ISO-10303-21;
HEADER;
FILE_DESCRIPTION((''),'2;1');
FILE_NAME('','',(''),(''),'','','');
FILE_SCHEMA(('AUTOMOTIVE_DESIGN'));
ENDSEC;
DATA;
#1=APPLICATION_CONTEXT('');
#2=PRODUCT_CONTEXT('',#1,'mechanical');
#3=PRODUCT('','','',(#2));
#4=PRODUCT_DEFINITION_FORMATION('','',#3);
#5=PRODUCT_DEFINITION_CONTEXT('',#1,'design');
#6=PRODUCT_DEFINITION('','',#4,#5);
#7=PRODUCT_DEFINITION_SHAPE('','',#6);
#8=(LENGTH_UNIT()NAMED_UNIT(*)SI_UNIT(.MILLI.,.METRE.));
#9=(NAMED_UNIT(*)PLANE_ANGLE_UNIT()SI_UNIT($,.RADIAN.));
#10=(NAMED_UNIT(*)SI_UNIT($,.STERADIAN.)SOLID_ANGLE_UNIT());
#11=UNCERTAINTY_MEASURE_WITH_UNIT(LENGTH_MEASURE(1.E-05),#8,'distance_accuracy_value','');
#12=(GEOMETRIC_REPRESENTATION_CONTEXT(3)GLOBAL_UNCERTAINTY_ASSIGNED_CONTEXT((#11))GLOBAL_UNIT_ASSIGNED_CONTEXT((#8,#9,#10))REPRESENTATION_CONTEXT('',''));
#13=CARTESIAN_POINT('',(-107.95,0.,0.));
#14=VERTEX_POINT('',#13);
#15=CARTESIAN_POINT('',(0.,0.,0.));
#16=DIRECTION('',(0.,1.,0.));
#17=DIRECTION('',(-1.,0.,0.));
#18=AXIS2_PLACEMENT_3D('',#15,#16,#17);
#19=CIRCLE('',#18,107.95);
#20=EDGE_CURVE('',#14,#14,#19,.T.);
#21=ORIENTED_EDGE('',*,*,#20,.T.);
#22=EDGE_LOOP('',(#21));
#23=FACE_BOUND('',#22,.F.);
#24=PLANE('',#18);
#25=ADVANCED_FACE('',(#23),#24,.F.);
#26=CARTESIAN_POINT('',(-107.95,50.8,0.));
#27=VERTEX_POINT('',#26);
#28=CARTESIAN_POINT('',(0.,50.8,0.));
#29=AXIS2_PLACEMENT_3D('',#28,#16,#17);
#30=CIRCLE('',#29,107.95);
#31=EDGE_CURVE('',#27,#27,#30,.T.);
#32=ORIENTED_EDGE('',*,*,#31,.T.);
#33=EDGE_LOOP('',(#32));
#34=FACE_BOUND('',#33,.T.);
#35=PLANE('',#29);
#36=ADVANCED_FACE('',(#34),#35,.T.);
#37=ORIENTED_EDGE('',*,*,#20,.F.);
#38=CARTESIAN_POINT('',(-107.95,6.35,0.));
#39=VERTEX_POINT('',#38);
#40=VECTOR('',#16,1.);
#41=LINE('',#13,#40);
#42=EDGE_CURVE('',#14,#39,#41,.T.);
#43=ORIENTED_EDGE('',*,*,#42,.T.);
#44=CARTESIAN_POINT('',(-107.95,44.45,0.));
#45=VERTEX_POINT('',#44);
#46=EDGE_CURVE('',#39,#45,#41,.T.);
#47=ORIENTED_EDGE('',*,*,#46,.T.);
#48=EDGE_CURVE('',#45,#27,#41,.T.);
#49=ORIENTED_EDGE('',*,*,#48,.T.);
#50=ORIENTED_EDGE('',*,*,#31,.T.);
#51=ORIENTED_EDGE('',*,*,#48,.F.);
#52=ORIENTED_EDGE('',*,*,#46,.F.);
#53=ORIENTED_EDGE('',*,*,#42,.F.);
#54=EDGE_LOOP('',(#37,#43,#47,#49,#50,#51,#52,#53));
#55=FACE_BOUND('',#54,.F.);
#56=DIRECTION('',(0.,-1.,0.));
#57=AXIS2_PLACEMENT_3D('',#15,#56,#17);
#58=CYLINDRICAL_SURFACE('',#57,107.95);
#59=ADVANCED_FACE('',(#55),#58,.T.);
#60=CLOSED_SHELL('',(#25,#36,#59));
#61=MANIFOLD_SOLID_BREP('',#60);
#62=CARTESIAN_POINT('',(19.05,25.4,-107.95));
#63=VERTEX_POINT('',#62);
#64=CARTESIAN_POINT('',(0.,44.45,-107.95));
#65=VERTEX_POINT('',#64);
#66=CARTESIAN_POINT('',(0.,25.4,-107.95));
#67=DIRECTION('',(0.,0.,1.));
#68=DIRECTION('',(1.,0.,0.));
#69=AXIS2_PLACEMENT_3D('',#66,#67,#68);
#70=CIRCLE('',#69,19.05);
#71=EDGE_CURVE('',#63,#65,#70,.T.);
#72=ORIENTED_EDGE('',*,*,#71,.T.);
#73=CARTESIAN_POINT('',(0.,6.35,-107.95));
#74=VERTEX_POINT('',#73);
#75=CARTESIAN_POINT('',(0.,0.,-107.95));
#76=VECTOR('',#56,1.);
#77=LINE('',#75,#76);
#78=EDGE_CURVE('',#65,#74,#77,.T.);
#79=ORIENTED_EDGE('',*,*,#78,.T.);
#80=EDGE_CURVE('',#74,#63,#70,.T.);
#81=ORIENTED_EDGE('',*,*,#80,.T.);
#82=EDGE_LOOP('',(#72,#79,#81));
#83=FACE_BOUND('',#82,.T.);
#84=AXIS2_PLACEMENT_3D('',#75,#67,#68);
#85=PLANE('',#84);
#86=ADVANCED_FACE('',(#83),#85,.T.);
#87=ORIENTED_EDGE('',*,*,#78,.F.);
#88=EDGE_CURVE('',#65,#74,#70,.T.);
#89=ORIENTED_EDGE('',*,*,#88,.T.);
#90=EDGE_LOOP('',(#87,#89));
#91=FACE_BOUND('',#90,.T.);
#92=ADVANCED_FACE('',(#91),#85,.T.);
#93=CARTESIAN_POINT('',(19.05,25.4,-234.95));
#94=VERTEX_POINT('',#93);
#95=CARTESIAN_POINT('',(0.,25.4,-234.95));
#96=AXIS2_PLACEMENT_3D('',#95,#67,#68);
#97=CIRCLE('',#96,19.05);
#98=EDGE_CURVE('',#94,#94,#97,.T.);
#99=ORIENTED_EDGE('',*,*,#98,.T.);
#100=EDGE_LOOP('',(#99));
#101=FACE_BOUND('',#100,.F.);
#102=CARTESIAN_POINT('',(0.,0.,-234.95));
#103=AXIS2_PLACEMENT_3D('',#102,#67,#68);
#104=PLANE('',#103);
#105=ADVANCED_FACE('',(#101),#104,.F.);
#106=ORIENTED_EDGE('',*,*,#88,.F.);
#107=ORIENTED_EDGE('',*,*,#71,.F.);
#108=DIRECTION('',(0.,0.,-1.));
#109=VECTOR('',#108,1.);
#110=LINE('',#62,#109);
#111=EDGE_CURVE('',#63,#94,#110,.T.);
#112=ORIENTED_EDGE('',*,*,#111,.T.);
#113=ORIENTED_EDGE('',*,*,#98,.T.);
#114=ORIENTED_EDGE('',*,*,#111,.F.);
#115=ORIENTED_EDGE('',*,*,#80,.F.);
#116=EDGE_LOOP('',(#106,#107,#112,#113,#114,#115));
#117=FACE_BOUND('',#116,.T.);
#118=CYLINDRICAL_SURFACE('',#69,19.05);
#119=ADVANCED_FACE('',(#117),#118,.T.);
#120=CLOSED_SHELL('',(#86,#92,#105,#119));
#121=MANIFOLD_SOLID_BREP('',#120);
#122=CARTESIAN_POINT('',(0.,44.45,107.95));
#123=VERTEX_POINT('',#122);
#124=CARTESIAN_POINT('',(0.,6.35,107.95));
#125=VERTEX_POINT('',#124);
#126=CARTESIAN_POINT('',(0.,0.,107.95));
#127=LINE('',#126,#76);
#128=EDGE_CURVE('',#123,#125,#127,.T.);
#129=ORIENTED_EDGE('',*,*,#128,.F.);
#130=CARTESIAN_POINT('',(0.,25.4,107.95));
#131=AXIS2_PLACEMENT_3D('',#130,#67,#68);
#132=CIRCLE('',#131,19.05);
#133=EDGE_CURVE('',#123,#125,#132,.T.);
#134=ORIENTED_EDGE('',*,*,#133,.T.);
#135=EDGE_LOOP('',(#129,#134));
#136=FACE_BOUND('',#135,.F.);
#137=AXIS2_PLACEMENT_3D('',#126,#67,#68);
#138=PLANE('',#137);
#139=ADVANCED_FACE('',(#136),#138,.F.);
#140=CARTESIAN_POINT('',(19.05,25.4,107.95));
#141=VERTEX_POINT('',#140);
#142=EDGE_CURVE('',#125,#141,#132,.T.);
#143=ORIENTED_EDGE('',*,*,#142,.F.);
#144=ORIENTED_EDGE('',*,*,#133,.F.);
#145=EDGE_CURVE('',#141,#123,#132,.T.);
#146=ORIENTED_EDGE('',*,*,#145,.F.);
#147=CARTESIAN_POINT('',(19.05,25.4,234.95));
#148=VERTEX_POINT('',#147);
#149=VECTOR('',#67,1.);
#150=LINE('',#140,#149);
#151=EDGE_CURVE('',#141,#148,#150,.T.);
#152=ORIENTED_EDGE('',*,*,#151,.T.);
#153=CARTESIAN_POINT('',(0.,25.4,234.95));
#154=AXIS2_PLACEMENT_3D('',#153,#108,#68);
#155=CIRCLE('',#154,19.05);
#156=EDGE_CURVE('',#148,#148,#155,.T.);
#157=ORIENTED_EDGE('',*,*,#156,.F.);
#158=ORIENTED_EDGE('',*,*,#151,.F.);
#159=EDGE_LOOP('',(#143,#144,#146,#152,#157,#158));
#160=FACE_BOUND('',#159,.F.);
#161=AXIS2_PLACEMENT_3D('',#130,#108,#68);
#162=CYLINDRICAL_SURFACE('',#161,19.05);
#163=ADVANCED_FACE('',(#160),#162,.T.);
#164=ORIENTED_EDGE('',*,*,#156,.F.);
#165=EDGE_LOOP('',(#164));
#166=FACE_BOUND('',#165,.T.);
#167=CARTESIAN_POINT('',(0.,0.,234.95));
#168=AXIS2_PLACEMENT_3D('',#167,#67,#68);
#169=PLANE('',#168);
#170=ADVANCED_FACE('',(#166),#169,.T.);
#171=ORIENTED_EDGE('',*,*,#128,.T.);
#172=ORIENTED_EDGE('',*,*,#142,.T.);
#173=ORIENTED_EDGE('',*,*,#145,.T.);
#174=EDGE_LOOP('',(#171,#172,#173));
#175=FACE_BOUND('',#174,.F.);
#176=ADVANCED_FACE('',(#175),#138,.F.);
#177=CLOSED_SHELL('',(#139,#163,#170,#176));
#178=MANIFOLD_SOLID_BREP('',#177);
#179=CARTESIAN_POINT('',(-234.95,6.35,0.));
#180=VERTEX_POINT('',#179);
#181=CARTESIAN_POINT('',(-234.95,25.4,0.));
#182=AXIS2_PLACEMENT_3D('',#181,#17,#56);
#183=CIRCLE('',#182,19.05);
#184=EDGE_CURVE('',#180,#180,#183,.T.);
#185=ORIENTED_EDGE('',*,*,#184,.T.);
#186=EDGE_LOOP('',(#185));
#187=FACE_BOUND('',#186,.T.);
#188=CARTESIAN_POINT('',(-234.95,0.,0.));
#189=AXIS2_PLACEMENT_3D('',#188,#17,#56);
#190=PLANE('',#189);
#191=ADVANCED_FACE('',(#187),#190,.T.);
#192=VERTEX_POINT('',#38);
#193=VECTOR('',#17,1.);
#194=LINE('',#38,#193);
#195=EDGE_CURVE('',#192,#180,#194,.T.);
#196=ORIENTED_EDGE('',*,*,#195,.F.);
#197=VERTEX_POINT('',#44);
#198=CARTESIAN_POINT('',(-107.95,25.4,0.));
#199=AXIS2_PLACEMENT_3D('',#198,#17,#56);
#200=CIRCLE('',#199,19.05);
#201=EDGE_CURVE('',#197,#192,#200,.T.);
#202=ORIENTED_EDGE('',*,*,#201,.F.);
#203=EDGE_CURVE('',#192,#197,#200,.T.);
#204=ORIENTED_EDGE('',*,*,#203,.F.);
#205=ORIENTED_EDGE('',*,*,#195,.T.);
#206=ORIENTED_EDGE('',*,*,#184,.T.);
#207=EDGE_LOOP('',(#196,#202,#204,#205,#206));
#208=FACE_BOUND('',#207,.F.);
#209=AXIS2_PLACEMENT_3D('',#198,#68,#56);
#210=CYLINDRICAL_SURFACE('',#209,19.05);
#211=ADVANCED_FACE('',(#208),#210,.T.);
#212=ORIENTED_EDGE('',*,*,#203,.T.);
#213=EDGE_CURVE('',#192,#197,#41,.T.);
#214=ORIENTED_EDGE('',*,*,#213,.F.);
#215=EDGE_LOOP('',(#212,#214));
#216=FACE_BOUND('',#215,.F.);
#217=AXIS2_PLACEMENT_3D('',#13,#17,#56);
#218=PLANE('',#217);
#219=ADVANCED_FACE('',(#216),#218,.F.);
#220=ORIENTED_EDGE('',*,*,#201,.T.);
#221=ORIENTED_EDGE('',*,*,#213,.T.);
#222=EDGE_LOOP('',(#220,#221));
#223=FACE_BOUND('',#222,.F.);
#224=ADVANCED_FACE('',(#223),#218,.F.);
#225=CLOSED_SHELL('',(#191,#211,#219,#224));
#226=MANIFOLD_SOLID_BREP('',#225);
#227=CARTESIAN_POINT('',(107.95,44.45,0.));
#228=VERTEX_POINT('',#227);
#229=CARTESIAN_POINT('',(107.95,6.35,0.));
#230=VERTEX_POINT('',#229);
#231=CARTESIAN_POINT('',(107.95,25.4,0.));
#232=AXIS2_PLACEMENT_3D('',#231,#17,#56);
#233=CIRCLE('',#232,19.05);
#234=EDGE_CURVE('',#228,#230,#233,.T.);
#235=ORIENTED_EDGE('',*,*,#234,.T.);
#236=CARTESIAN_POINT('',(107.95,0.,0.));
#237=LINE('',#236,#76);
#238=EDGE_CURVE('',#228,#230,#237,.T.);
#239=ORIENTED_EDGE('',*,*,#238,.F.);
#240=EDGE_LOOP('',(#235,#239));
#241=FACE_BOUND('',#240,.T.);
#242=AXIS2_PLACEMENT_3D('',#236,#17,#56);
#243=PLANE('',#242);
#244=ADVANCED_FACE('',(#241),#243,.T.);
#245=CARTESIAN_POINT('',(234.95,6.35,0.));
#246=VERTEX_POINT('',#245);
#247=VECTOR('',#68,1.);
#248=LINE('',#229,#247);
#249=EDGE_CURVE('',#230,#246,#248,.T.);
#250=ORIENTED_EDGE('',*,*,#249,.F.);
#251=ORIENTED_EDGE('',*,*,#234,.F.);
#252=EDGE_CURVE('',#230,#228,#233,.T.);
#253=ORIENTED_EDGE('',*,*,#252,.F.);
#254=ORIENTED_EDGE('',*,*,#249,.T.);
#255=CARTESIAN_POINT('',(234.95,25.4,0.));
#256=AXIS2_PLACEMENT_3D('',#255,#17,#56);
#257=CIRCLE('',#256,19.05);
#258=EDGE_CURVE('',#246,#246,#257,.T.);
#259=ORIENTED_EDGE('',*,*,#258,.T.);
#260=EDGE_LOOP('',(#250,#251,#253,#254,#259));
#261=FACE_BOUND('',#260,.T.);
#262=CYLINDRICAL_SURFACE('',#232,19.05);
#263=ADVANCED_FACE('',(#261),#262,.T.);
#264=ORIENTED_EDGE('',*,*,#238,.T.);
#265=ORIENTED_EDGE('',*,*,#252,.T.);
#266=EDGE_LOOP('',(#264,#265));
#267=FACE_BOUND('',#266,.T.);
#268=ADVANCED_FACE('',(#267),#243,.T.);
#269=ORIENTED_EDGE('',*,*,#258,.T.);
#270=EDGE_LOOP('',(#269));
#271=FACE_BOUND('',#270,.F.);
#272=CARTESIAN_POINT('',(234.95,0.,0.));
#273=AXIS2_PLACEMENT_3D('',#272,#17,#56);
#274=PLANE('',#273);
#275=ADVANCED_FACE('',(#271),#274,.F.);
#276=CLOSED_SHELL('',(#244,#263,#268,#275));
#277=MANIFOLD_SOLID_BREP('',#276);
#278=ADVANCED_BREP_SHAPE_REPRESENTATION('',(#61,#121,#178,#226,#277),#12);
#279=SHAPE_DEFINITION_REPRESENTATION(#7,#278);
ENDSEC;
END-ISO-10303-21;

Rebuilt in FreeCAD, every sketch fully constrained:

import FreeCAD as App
import Part
import Sketcher
from FreeCAD import Vector
Q = App.Units.Quantity

doc = App.newDocument("Part")
body = doc.addObject("PartDesign::Body", "Body")
body.AllowCompound = True

sketch1 = body.newObject("Sketcher::SketchObject", "Sketch")
sketch1.AttachmentSupport = (doc.getObject("XZ_Plane"), [""])
sketch1.MapMode = "FlatFace"
sketch1.addGeometry(Part.Circle(Vector(0, 0, 0), Vector(0, 0, 1), 108), False)
sketch1.addConstraint(Sketcher.Constraint("Coincident", 0, 3, -1, 1))
sketch1.addConstraint(Sketcher.Constraint("Diameter", 0, Q("8.5 in")))
pad1 = body.newObject("PartDesign::Pad", "Pad")
pad1.Profile = sketch1
pad1.Length = Q("2 in")
pad1.Reversed = True

sketch2 = body.newObject("Sketcher::SketchObject", "Sketch001")
sketch2.AttachmentSupport = (doc.getObject("XY_Plane"), [""])
sketch2.MapMode = "FlatFace"
sketch2.AttachmentOffset = App.Placement(Vector(0, 0, -4.25 * 25.4), App.Rotation())
sketch2.addGeometry(Part.Circle(Vector(0, 25, 0), Vector(0, 0, 1), 19), False)
sketch2.addConstraint(Sketcher.Constraint("PointOnObject", 0, 3, -2))
sketch2.addConstraint(Sketcher.Constraint("Diameter", 0, Q("1.5 in")))
sketch2.addConstraint(Sketcher.Constraint("DistanceY", -1, 1, 0, 3, Q("1 in")))
pad2 = body.newObject("PartDesign::Pad", "Pad001")
pad2.Profile = sketch2
pad2.Length = Q("5 in")
pad2.Reversed = True

sketch3 = body.newObject("Sketcher::SketchObject", "Sketch002")
sketch3.AttachmentSupport = (doc.getObject("YZ_Plane"), [""])
sketch3.MapMode = "FlatFace"
sketch3.AttachmentOffset = App.Placement(Vector(0, 0, -4.25 * 25.4), App.Rotation())
sketch3.addGeometry(Part.Circle(Vector(25, 0, 0), Vector(0, 0, 1), 19), False)
sketch3.addConstraint(Sketcher.Constraint("PointOnObject", 0, 3, -1))
sketch3.addConstraint(Sketcher.Constraint("Diameter", 0, Q("1.5 in")))
sketch3.addConstraint(Sketcher.Constraint("DistanceX", -1, 1, 0, 3, Q("1 in")))
pad3 = body.newObject("PartDesign::Pad", "Pad002")
pad3.Profile = sketch3
pad3.Length = Q("5 in")
pad3.Reversed = True

sketch4 = body.newObject("Sketcher::SketchObject", "Sketch003")
sketch4.AttachmentSupport = (doc.getObject("XY_Plane"), [""])
sketch4.MapMode = "FlatFace"
sketch4.AttachmentOffset = App.Placement(Vector(0, 0, 4.25 * 25.4), App.Rotation())
sketch4.addGeometry(Part.Circle(Vector(0, 25, 0), Vector(0, 0, 1), 19), False)
sketch4.addConstraint(Sketcher.Constraint("PointOnObject", 0, 3, -2))
sketch4.addConstraint(Sketcher.Constraint("Diameter", 0, Q("1.5 in")))
sketch4.addConstraint(Sketcher.Constraint("DistanceY", -1, 1, 0, 3, Q("1 in")))
pad4 = body.newObject("PartDesign::Pad", "Pad003")
pad4.Profile = sketch4
pad4.Length = Q("5 in")

sketch5 = body.newObject("Sketcher::SketchObject", "Sketch004")
sketch5.AttachmentSupport = (doc.getObject("YZ_Plane"), [""])
sketch5.MapMode = "FlatFace"
sketch5.AttachmentOffset = App.Placement(Vector(0, 0, 4.25 * 25.4), App.Rotation())
sketch5.addGeometry(Part.Circle(Vector(25, 0, 0), Vector(0, 0, 1), 19), False)
sketch5.addConstraint(Sketcher.Constraint("PointOnObject", 0, 3, -1))
sketch5.addConstraint(Sketcher.Constraint("Diameter", 0, Q("1.5 in")))
sketch5.addConstraint(Sketcher.Constraint("DistanceX", -1, 1, 0, 3, Q("1 in")))
pad5 = body.newObject("PartDesign::Pad", "Pad004")
pad5.Profile = sketch5
pad5.Length = Q("5 in")

doc.recompute()
